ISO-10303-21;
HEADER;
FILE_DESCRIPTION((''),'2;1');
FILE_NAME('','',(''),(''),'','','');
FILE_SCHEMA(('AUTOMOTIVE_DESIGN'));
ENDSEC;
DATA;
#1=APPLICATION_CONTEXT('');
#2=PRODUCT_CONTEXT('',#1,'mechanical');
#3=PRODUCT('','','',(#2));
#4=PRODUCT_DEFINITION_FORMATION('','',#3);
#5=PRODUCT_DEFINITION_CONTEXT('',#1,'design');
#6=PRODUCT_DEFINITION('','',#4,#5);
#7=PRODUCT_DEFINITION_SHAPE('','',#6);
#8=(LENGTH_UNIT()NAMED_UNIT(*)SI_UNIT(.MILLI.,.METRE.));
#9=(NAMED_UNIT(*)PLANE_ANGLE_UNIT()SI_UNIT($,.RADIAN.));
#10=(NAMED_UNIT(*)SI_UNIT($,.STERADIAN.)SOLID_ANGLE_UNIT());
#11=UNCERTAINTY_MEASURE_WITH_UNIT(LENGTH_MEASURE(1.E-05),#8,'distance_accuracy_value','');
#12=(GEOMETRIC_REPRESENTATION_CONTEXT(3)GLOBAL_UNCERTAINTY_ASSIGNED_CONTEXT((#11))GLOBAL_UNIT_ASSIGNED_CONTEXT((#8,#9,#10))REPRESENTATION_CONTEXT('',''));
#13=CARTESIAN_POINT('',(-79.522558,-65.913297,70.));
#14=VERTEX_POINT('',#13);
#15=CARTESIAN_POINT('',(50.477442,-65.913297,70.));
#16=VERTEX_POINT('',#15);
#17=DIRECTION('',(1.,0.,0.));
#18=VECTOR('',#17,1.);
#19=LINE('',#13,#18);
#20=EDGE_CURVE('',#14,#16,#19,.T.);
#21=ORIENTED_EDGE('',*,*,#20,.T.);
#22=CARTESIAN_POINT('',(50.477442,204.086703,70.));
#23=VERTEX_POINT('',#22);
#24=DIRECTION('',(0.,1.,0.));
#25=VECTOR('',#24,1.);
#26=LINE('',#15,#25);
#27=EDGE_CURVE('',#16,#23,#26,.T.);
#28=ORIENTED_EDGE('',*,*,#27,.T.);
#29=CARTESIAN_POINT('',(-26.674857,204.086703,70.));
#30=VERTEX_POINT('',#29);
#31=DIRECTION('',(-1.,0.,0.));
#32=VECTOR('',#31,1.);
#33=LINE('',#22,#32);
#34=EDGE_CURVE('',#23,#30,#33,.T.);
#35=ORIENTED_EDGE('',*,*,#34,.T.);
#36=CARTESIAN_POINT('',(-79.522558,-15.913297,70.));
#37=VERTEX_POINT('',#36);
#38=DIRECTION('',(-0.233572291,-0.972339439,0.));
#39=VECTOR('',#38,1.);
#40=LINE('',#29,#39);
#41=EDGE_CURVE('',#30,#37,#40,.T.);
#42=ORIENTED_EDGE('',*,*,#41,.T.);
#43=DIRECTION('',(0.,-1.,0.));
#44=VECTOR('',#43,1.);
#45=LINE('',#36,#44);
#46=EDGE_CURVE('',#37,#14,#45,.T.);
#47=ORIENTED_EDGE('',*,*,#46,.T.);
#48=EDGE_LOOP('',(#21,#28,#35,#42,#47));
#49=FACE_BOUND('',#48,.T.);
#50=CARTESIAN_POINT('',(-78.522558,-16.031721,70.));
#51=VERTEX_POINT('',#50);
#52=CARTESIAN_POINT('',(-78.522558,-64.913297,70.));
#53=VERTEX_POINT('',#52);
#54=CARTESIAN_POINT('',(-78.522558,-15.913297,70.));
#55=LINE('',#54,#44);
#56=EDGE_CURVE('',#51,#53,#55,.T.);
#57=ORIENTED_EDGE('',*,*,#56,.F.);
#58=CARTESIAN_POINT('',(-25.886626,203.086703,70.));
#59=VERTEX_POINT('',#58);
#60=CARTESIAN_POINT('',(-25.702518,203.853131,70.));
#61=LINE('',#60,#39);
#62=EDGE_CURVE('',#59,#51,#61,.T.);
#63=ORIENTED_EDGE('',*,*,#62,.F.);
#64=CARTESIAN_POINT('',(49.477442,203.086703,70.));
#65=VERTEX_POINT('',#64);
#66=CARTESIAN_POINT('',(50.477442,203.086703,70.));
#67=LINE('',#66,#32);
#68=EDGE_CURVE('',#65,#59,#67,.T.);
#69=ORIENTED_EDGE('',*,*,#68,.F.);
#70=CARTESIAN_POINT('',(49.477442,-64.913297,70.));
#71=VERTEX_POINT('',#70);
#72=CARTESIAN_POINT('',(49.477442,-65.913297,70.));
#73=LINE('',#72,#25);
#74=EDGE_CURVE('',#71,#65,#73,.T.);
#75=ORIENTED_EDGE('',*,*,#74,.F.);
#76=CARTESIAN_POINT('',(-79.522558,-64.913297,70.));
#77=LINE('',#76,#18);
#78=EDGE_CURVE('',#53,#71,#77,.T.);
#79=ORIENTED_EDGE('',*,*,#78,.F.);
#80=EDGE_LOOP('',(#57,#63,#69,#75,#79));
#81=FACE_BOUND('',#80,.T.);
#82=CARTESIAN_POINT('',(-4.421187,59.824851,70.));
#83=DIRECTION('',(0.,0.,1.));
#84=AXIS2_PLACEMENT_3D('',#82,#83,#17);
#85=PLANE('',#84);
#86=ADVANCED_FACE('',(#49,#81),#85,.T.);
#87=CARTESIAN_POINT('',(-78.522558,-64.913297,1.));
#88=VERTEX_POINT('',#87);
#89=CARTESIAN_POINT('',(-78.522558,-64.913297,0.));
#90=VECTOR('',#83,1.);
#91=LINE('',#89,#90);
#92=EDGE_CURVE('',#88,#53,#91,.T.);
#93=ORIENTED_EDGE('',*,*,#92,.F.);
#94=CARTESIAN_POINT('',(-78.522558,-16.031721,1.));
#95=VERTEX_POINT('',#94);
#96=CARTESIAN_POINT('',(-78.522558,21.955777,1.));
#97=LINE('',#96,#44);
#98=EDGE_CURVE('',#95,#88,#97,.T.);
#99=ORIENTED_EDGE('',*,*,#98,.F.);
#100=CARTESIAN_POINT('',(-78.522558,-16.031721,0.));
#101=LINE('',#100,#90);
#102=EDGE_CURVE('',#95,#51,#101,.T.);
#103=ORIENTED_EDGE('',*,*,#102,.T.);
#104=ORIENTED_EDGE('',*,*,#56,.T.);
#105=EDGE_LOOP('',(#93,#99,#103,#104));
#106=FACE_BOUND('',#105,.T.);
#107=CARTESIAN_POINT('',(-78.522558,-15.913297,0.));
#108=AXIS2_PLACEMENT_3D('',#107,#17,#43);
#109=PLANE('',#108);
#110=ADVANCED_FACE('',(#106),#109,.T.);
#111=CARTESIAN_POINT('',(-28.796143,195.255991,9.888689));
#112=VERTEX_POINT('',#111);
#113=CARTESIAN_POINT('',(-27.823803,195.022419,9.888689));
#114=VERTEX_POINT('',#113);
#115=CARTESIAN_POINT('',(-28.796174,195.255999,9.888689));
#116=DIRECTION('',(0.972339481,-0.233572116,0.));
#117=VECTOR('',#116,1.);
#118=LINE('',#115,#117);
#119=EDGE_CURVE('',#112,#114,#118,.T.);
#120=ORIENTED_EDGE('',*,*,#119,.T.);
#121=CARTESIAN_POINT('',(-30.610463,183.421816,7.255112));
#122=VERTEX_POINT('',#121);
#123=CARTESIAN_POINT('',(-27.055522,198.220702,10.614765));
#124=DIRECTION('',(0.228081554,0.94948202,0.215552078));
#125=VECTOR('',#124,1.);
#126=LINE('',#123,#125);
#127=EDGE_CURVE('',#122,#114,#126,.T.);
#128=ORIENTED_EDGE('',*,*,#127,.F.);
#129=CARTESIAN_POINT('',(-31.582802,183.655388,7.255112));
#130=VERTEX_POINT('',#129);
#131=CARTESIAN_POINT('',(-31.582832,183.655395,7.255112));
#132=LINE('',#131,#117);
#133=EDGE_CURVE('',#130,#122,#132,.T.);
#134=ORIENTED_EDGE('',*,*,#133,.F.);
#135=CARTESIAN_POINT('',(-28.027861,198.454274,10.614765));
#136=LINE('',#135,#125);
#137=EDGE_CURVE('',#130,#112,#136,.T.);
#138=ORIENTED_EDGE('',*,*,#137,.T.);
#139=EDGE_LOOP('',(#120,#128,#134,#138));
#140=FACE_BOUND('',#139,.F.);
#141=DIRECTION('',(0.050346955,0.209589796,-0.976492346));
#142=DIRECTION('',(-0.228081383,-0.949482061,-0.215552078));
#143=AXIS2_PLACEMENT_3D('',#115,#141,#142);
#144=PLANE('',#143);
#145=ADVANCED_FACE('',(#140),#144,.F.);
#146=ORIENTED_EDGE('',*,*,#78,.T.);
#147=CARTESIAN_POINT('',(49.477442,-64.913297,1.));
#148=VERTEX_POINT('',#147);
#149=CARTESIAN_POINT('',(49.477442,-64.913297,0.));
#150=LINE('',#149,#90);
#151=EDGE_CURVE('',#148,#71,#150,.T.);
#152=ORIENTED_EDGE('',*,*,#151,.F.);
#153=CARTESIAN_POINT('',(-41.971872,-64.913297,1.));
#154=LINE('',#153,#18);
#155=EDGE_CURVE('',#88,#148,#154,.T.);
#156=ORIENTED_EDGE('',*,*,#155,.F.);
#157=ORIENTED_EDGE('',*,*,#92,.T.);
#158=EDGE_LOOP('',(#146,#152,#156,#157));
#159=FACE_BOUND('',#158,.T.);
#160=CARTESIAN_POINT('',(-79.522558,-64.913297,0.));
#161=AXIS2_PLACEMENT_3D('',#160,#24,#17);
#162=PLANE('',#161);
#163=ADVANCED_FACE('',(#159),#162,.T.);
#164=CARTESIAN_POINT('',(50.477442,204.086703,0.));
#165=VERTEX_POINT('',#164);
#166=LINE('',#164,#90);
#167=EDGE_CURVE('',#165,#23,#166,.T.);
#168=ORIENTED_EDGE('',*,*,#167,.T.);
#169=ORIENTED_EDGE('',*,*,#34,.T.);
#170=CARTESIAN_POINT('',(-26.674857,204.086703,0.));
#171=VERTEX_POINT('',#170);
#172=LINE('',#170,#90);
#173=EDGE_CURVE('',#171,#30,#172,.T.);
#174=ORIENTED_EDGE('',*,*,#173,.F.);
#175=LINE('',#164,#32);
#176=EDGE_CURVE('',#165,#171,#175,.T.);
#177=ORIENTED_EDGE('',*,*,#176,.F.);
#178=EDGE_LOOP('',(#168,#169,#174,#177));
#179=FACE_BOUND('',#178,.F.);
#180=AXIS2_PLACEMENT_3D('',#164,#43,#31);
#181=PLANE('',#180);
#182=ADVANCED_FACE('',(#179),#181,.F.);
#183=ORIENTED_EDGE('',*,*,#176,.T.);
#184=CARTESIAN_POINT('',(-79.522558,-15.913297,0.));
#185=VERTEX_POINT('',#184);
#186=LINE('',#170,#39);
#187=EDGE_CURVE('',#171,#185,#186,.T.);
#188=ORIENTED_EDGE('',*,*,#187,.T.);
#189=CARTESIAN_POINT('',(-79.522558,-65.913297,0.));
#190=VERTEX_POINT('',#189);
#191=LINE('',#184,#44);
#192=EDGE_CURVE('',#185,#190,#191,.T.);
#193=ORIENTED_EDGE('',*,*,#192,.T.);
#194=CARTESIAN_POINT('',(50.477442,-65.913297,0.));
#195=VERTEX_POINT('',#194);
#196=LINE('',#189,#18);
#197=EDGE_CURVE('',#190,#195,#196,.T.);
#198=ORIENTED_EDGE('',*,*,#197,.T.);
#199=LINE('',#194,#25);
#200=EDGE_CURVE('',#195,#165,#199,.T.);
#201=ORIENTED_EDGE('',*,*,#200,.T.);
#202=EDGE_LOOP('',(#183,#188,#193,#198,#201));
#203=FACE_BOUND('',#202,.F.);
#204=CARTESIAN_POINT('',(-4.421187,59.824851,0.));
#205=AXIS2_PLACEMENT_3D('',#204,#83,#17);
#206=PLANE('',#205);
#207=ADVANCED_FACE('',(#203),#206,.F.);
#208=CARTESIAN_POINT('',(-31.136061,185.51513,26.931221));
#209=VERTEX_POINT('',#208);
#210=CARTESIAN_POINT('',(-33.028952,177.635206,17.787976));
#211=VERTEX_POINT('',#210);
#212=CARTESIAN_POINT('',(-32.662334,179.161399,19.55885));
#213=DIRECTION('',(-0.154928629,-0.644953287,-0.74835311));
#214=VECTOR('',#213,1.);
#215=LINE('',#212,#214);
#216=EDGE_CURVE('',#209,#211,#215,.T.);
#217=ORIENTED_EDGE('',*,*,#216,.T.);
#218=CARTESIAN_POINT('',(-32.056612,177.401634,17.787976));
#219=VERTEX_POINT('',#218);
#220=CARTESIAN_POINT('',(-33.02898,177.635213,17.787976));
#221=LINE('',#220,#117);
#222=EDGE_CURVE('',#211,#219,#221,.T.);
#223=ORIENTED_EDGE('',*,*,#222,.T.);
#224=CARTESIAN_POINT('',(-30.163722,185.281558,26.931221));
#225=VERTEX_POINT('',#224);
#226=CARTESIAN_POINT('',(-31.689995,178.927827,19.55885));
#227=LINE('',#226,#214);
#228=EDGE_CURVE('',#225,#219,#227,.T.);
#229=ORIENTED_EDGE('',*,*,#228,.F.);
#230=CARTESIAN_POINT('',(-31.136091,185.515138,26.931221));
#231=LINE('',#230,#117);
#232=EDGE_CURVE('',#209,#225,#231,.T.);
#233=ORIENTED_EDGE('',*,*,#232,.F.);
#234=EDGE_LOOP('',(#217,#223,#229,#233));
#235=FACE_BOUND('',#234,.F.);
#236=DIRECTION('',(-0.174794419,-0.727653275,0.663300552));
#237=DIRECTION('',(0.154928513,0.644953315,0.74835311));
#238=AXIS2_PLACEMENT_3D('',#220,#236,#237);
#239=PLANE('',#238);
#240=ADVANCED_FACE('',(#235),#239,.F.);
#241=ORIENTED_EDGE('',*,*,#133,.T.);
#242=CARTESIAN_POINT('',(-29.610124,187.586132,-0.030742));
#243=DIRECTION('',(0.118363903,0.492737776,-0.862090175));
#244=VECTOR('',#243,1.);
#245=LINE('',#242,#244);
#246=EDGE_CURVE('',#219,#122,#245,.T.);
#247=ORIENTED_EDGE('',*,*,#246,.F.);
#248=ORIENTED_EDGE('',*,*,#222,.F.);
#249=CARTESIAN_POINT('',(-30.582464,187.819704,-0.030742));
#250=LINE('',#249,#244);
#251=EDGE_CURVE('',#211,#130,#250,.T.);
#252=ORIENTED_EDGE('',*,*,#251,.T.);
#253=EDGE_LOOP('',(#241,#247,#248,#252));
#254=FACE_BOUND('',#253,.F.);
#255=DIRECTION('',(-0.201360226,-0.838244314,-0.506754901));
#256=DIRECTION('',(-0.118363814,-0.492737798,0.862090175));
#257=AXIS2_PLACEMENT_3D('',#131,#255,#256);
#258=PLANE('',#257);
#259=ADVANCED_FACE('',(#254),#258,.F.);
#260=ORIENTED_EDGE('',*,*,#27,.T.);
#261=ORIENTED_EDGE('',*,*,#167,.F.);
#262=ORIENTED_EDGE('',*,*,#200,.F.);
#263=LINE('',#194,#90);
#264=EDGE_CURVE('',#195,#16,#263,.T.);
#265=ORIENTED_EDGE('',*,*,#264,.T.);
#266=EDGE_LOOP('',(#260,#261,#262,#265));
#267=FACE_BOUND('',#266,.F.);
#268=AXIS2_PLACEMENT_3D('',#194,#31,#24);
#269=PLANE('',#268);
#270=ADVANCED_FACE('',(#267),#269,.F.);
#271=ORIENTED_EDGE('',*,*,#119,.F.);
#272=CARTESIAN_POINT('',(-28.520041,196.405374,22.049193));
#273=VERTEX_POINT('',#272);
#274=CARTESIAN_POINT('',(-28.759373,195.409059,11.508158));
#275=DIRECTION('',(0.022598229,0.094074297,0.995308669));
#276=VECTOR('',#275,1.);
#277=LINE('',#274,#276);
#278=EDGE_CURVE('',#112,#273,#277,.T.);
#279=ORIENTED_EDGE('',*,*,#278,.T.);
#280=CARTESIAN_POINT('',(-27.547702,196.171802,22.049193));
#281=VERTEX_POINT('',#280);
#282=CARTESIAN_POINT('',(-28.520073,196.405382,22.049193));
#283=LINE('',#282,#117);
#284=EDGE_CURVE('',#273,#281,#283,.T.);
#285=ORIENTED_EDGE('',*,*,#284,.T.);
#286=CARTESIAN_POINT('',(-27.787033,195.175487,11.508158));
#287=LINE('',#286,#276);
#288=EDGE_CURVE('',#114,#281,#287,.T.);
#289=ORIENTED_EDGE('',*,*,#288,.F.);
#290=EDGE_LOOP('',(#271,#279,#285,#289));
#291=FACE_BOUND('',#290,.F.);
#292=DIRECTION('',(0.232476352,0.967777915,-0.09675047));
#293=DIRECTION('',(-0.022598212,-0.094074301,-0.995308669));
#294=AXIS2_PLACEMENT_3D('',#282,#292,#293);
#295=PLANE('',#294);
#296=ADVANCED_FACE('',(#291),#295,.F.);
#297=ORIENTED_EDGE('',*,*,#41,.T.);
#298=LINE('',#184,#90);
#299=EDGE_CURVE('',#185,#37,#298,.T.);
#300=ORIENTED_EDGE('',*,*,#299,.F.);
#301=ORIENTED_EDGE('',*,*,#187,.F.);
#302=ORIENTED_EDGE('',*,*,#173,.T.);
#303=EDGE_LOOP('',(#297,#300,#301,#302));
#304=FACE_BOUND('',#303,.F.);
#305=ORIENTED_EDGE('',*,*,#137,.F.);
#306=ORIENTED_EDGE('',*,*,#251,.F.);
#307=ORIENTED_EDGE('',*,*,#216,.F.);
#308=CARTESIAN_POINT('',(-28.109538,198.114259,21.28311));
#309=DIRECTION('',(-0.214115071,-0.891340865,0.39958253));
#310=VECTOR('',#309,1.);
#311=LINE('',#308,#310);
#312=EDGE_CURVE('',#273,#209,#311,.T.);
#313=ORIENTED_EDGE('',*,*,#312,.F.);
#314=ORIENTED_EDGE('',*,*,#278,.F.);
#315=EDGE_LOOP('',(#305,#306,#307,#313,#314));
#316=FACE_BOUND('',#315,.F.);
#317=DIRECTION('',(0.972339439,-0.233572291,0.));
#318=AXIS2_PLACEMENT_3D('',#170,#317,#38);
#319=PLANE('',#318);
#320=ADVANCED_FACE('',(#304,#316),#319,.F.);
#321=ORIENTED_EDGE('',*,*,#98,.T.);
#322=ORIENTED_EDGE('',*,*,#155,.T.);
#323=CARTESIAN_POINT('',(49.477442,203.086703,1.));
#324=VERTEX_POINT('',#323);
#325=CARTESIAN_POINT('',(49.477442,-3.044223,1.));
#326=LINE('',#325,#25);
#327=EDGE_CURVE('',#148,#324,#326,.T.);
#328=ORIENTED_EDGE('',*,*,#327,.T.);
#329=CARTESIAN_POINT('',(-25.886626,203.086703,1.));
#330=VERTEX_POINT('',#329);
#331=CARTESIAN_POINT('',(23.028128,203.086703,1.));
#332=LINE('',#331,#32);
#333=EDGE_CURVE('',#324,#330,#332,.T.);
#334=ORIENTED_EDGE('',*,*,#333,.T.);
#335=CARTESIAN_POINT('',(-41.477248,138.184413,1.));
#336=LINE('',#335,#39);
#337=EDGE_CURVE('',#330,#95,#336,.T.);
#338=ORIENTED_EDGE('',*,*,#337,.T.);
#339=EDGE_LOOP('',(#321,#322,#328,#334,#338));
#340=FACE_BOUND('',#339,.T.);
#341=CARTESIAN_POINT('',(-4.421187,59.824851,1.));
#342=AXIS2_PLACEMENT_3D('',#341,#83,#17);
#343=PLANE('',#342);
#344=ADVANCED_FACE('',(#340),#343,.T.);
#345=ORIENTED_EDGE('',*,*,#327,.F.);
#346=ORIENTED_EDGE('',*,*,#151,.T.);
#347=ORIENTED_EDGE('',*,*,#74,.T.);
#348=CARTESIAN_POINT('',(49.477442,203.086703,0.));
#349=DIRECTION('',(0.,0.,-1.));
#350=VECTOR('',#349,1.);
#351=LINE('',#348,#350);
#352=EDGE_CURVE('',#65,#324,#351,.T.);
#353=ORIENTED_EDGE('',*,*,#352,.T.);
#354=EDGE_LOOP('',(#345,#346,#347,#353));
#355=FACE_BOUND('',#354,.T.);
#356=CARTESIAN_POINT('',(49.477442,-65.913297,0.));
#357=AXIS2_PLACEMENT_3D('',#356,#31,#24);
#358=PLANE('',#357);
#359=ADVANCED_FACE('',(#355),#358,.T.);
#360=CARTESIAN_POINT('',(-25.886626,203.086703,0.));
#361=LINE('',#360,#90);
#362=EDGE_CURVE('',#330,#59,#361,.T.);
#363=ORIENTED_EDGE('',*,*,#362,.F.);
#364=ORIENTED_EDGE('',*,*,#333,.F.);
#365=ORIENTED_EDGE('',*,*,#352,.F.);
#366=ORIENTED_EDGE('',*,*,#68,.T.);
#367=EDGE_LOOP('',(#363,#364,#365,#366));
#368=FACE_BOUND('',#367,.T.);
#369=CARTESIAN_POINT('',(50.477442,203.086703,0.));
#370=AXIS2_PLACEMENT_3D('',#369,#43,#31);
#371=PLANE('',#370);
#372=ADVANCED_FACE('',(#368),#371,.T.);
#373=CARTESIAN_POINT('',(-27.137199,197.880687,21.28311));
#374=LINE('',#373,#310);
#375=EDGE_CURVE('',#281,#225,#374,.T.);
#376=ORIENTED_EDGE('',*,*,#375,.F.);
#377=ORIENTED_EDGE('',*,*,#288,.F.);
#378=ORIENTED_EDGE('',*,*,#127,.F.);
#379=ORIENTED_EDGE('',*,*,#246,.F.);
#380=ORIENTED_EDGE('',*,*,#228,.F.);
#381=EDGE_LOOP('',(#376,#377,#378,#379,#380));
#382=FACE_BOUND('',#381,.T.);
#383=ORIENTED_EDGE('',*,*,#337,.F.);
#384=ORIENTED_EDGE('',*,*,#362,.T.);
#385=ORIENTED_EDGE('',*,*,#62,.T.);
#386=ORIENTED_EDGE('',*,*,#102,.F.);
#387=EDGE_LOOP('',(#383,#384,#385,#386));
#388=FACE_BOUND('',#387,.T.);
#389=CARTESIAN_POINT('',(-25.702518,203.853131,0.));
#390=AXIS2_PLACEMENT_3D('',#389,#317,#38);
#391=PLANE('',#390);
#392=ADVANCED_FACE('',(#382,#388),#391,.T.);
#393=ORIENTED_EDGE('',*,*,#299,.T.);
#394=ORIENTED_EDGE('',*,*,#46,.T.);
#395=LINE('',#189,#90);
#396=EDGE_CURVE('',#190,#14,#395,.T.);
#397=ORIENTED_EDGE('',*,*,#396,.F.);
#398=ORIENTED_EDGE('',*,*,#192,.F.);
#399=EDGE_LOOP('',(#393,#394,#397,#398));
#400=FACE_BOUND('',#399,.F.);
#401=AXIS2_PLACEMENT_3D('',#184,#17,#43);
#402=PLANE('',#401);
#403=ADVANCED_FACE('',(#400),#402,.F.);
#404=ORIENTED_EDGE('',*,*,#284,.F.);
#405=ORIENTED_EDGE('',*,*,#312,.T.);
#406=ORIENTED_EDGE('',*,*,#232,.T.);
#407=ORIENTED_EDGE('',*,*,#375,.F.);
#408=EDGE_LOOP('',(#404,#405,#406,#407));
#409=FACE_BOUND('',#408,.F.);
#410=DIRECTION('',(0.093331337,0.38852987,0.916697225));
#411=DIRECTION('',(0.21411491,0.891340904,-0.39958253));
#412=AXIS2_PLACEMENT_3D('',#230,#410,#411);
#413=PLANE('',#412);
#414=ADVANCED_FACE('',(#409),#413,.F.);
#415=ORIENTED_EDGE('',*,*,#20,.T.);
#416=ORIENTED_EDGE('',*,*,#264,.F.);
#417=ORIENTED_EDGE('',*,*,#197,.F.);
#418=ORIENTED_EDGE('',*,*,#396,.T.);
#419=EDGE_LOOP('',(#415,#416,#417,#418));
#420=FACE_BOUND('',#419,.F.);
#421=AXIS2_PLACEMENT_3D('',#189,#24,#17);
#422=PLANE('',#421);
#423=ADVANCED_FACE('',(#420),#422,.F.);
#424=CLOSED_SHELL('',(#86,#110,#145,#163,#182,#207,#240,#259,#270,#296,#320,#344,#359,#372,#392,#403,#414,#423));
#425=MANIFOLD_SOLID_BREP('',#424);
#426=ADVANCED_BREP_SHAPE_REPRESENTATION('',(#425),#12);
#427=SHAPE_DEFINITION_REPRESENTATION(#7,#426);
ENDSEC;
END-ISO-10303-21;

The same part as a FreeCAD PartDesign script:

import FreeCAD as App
import Part
import Sketcher

V = App.Vector


def faces_at(feature, points):
    """Names of the faces that lie closest to the given points."""
    faces = feature.Shape.Faces
    near = lambda p: min(range(len(faces)), key=lambda i: faces[i].distToShape(Part.Vertex(*p))[0])
    return sorted({f"Face{near(p) + 1}" for p in points})

doc = App.newDocument("Part")
params = doc.addObject("Spreadsheet::Sheet", "Params")
for row, (alias, value) in enumerate([
    ("sketch1_width", "130 mm"),
    ("sketch1_height", "50 mm"),
    ("sketch1_height2", "270 mm"),
    ("pad1_length", "70 mm"),
    ("thickness_wall", "1 mm"),
    ("pocket1_length", "4 mm"),
], start=1):
    params.set(f"A{row}", alias)
    params.set(f"B{row}", "=" + value)
    params.setAlias(f"B{row}", alias)

body = doc.addObject("PartDesign::Body", "Body")

# Sketch on XY plane
sketch1 = body.newObject("Sketcher::SketchObject", "Sketch")
sketch1.AttachmentSupport = (doc.getObject("XY_Plane"), [""])
sketch1.MapMode = "FlatFace"
sketch1.addGeometry([
    Part.LineSegment(V(50, 204, 0), V(-27, 204, 0)),  # 0
    Part.LineSegment(V(-27, 204, 0), V(-80, -16, 0)),  # 1
    Part.LineSegment(V(-80, -16, 0), V(-80, -66, 0)),  # 2
    Part.LineSegment(V(-80, -66, 0), V(50, -66, 0)),  # 3
    Part.LineSegment(V(50, -66, 0), V(50, 204, 0)),  # 4
], False)
sketch1.addConstraint([
    Sketcher.Constraint("Coincident", 0, 2, 1, 1),
    Sketcher.Constraint("Coincident", 1, 2, 2, 1),
    Sketcher.Constraint("Coincident", 2, 2, 3, 1),
    Sketcher.Constraint("Coincident", 3, 2, 4, 1),
    Sketcher.Constraint("Coincident", 4, 2, 0, 1),
    Sketcher.Constraint("Horizontal", 0),
    Sketcher.Constraint("Vertical", 2),
    Sketcher.Constraint("Horizontal", 3),
    Sketcher.Constraint("Vertical", 4),
    Sketcher.Constraint("DistanceX", 3, 1, 3, 2, 130.0),
    Sketcher.Constraint("DistanceY", 2, 2, 2, 1, 50.0),
    Sketcher.Constraint("DistanceY", 4, 1, 4, 2, 270.0),
    Sketcher.Constraint("DistanceX", 0, 2, 0, 1, 77.152299),
    Sketcher.Constraint("DistanceX", 1, 2, -1, 1, 79.522558),
    Sketcher.Constraint("DistanceY", -1, 1, 0, 2, 204.086703),
])
sketch1.setExpression("Constraints[9]", "Params.sketch1_width")
sketch1.setExpression("Constraints[10]", "Params.sketch1_height")
sketch1.setExpression("Constraints[11]", "Params.sketch1_height2")
pad1 = body.newObject("PartDesign::Pad", "Pad")
pad1.Profile = sketch1
pad1.setExpression("Length", "Params.pad1_length")
doc.recompute()

thickness = body.newObject("PartDesign::Thickness", "Thickness")
thickness.Base = (pad1, faces_at(pad1, [(-14.523, 69.087, 70)]))
thickness.setExpression("Value", "Params.thickness_wall")
thickness.Reversed = True
thickness.Join = "Arc"

# Sketch on an angled plane
sketch2 = body.newObject("Sketcher::SketchObject", "Sketch001")
sketch2.Placement = App.Placement(V(-71.57003, 17.192325, 0), App.Rotation(V(-0.233572116, -0.972339481, 0), V(0, 0, 1), V(-0.972339481, 0.233572116, 0), "ZXY"))
sketch2.addGeometry([
    Part.LineSegment(V(-165, 18, 0), V(-173, 27, 0)),  # 0
    Part.LineSegment(V(-173, 27, 0), V(-184, 22, 0)),  # 1
    Part.LineSegment(V(-184, 22, 0), V(-183, 10, 0)),  # 2
    Part.LineSegment(V(-183, 10, 0), V(-171, 7, 0)),  # 3
    Part.LineSegment(V(-171, 7, 0), V(-165, 18, 0)),  # 4
], False)
sketch2.addConstraint([
    Sketcher.Constraint("Coincident", 0, 2, 1, 1),
    Sketcher.Constraint("Coincident", 1, 2, 2, 1),
    Sketcher.Constraint("Coincident", 2, 2, 3, 1),
    Sketcher.Constraint("Coincident", 3, 2, 4, 1),
    Sketcher.Constraint("Coincident", 4, 2, 0, 1),
    Sketcher.Constraint("Equal", 0, 1),
    Sketcher.Constraint("Equal", 1, 2),
    Sketcher.Constraint("Equal", 2, 3),
    Sketcher.Constraint("Equal", 3, 4),
    Sketcher.Constraint("DistanceX", 1, 2, -1, 1, 184.3112),
    Sketcher.Constraint("Distance", 0, 12.217822),
    Sketcher.Constraint("DistanceY", -1, 1, 0, 2, 26.931221),
    Sketcher.Constraint("DistanceX", 2, 2, -1, 1, 183.12912),
    Sketcher.Constraint("DistanceY", -1, 1, 2, 2, 9.888689),
    Sketcher.Constraint("DistanceX", 3, 2, -1, 1, 171.19851),
])
pocket1 = body.newObject("PartDesign::Pocket", "Pocket")
pocket1.Profile = sketch2
pocket1.setExpression("Length", "Params.pocket1_length")

doc.recompute()
